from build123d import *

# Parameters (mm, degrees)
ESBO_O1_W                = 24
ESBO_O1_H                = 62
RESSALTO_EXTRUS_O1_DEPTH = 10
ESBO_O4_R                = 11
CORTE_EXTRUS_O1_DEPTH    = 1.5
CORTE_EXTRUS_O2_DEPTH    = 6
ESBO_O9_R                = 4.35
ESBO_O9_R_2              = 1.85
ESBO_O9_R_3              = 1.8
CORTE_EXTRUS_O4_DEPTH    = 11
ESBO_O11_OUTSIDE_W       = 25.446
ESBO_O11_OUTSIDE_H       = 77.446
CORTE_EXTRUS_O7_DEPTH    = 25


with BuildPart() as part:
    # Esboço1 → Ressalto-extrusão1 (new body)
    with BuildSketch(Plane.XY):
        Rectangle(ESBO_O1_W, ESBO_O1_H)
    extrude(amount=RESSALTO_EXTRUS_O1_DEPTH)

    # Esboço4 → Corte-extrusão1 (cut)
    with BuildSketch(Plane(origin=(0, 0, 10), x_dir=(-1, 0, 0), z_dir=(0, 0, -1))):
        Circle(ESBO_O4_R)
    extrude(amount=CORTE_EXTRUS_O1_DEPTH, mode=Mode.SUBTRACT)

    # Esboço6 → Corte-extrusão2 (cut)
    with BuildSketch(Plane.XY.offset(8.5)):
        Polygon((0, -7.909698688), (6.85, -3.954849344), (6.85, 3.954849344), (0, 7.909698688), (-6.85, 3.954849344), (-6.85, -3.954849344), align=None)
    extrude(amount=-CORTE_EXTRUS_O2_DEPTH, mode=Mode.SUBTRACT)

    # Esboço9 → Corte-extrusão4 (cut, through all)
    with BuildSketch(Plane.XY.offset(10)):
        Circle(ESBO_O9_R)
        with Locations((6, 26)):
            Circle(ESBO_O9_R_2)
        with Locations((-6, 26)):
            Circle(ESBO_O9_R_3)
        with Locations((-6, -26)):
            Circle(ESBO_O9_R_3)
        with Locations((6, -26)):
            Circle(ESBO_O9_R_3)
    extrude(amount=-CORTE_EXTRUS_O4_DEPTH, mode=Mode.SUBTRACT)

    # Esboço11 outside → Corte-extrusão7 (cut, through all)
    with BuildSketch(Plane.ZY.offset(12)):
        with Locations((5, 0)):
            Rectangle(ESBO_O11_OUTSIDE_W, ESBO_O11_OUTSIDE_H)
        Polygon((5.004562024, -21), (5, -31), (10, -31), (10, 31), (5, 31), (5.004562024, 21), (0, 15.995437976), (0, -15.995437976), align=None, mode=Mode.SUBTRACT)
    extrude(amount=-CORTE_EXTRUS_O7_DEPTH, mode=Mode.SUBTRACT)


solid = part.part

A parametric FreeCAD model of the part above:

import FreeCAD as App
import Part
import Sketcher

V = App.Vector
Q = App.Units.Quantity


def add_polygon(sketch, points):
    """Adds a closed chain of lines whose ends are joined by coincident constraints."""
    first, n = sketch.GeometryCount, len(points)
    for a, b in zip(points, points[1:] + points[:1]):
        sketch.addGeometry(Part.LineSegment(App.Vector(*a, 0), App.Vector(*b, 0)), False)
    for i in range(n):
        sketch.addConstraint(Sketcher.Constraint("Coincident", first + i, 2, first + (i + 1) % n, 1))

doc = App.newDocument("Part")
body = doc.addObject("PartDesign::Body", "Body")

# Sketch on XY plane
sketch1 = body.newObject("Sketcher::SketchObject", "Sketch")
sketch1.AttachmentSupport = (doc.getObject("XY_Plane"), [""])
sketch1.MapMode = "FlatFace"
add_polygon(sketch1, [(-12, 31), (-12, -31), (12, -31), (12, 31)])  # lines 0-3
sketch1.addConstraint([
    Sketcher.Constraint("Vertical", 0),
    Sketcher.Constraint("Horizontal", 1),
    Sketcher.Constraint("Vertical", 2),
    Sketcher.Constraint("Horizontal", 3),
    Sketcher.Constraint("Symmetric", 0, 2, 2, 2, -1, 1),
    Sketcher.Constraint("DistanceX", 1, 1, 1, 2, 24.0),
    Sketcher.Constraint("DistanceY", 0, 2, 0, 1, 62.0),
])
pad1 = body.newObject("PartDesign::Pad", "Pad")
pad1.Profile = sketch1
pad1.Length = 10

# Sketch on XY plane
sketch2 = body.newObject("Sketcher::SketchObject", "Sketch001")
sketch2.AttachmentSupport = (doc.getObject("XY_Plane"), [""])
sketch2.MapMode = "FlatFace"
sketch2.AttachmentOffset = App.Placement(V(0, 0, 10), App.Rotation())
sketch2.addGeometry(Part.Circle(V(0, 0, 0), V(0, 0, 1), 11), False)
sketch2.addConstraint([
    Sketcher.Constraint("Coincident", 0, 3, -1, 1),
    Sketcher.Constraint("Diameter", 0, 22.0),
])
pocket1 = body.newObject("PartDesign::Pocket", "Pocket")
pocket1.Profile = sketch2
pocket1.Length = 1.5

# Sketch on XY plane
sketch3 = body.newObject("Sketcher::SketchObject", "Sketch002")
sketch3.AttachmentSupport = (doc.getObject("XY_Plane"), [""])
sketch3.MapMode = "FlatFace"
sketch3.AttachmentOffset = App.Placement(V(0, 0, 8.5), App.Rotation())
add_polygon(sketch3, [(0, -7.909699), (6.85, -3.954849), (6.85, 3.954849), (0, 7.909699), (-6.85, 3.954849), (-6.85, -3.954849)])  # lines 0-5
sketch3.addConstraint([
    Sketcher.Constraint("Vertical", 1),
    Sketcher.Constraint("Vertical", 4),
    Sketcher.Constraint("Symmetric", 0, 2, 3, 2, -1, 1),
    Sketcher.Constraint("Symmetric", 2, 2, 5, 2, -1, 1),
    Sketcher.Constraint("PointOnObject", 2, 2, -2),
    Sketcher.Constraint("Parallel", 2, 5),
    Sketcher.Constraint("Horizontal", 1, 2, 3, 2),
    Sketcher.Constraint("Angle", 0, Q("30 deg")),
    Sketcher.Constraint("DistanceX", 3, 2, 1, 2, 13.7),
    Sketcher.Constraint("DistanceY", 1, 1, 1, 2, 7.909699),
])
pocket2 = body.newObject("PartDesign::Pocket", "Pocket001")
pocket2.Profile = sketch3
pocket2.Length = 6

# Sketch on XY plane
sketch4 = body.newObject("Sketcher::SketchObject", "Sketch003")
sketch4.AttachmentSupport = (doc.getObject("XY_Plane"), [""])
sketch4.MapMode = "FlatFace"
sketch4.AttachmentOffset = App.Placement(V(0, 0, 10), App.Rotation())
sketch4.addGeometry([
    Part.Circle(V(0, 0, 0), V(0, 0, 1), 4.35),  # 0
    Part.Circle(V(6, 26, 0), V(0, 0, 1), 1.85),  # 1
    Part.Circle(V(-6, 26, 0), V(0, 0, 1), 1.8),  # 2
    Part.Circle(V(-6, -26, 0), V(0, 0, 1), 1.8),  # 3
    Part.Circle(V(6, -26, 0), V(0, 0, 1), 1.8),  # 4
], False)
sketch4.addConstraint([
    Sketcher.Constraint("Coincident", 0, 3, -1, 1),
    Sketcher.Constraint("Equal", 2, 3),
    Sketcher.Constraint("Equal", 3, 4),
    Sketcher.Constraint("Symmetric", 1, 3, 3, 3, -1, 1),
    Sketcher.Constraint("Symmetric", 2, 3, 4, 3, -1, 1),
    Sketcher.Constraint("Symmetric", 1, 3, 2, 3, -2),
    Sketcher.Constraint("Diameter", 0, 8.7),
    Sketcher.Constraint("Diameter", 1, 3.7),
    Sketcher.Constraint("Diameter", 2, 3.6),
    Sketcher.Constraint("DistanceX", -1, 1, 1, 3, 6.0),
    Sketcher.Constraint("DistanceY", -1, 1, 1, 3, 26.0),
])
pocket3 = body.newObject("PartDesign::Pocket", "Pocket002")
pocket3.Profile = sketch4
pocket3.Type = "ThroughAll"

# Sketch on YZ plane
sketch5 = body.newObject("Sketcher::SketchObject", "Sketch004")
sketch5.AttachmentSupport = (doc.getObject("YZ_Plane"), [""])
sketch5.MapMode = "FlatFace"
sketch5.AttachmentOffset = App.Placement(V(0, 0, -12), App.Rotation())
add_polygon(sketch5, [(38.723, -7.723), (-38.723, -7.723), (-38.723, 17.723), (38.723, 17.723)])  # lines 0-3
add_polygon(sketch5, [(-31, 5), (-21, 5.004562), (-15.995438, 0), (15.995438, 0), (21, 5.004562), (31, 5), (31, 10), (-31, 10)])  # lines 4-11
sketch5.addConstraint([
    Sketcher.Constraint("Horizontal", 0),
    Sketcher.Constraint("Vertical", 1),
    Sketcher.Constraint("Horizontal", 2),
    Sketcher.Constraint("Vertical", 3),
    Sketcher.Constraint("Horizontal", 6),
    Sketcher.Constraint("Vertical", 9),
    Sketcher.Constraint("Horizontal", 10),
    Sketcher.Constraint("Vertical", 11),
    Sketcher.Constraint("Symmetric", 5, 2, 6, 2, -1, 1),
    Sketcher.Constraint("Symmetric", 4, 2, 7, 2, -2),
    Sketcher.Constraint("Symmetric", 8, 2, 11, 2, -2),
    Sketcher.Constraint("Perpendicular", 5, 7),
    Sketcher.Constraint("DistanceX", 10, 2, 10, 1, 62.0),
    Sketcher.Constraint("DistanceY", 9, 1, 9, 2, 5.0),
    Sketcher.Constraint("Distance", 4, 10.000001),
    Sketcher.Constraint("DistanceY", -1, 1, 8, 2, 5.0),
    Sketcher.Constraint("DistanceX", 0, 2, 0, 1, 77.446),
    Sketcher.Constraint("DistanceY", 1, 1, 1, 2, 25.446),
    Sketcher.Constraint("DistanceX", 0, 2, -1, 1, 38.723),
    Sketcher.Constraint("DistanceY", 0, 2, -1, 1, 7.723),
    Sketcher.Constraint("Distance", 5, 7.077519),
])
pocket4 = body.newObject("PartDesign::Pocket", "Pocket003")
pocket4.Profile = sketch5
pocket4.Type = "ThroughAll"
pocket4.Reversed = True

doc.recompute()
